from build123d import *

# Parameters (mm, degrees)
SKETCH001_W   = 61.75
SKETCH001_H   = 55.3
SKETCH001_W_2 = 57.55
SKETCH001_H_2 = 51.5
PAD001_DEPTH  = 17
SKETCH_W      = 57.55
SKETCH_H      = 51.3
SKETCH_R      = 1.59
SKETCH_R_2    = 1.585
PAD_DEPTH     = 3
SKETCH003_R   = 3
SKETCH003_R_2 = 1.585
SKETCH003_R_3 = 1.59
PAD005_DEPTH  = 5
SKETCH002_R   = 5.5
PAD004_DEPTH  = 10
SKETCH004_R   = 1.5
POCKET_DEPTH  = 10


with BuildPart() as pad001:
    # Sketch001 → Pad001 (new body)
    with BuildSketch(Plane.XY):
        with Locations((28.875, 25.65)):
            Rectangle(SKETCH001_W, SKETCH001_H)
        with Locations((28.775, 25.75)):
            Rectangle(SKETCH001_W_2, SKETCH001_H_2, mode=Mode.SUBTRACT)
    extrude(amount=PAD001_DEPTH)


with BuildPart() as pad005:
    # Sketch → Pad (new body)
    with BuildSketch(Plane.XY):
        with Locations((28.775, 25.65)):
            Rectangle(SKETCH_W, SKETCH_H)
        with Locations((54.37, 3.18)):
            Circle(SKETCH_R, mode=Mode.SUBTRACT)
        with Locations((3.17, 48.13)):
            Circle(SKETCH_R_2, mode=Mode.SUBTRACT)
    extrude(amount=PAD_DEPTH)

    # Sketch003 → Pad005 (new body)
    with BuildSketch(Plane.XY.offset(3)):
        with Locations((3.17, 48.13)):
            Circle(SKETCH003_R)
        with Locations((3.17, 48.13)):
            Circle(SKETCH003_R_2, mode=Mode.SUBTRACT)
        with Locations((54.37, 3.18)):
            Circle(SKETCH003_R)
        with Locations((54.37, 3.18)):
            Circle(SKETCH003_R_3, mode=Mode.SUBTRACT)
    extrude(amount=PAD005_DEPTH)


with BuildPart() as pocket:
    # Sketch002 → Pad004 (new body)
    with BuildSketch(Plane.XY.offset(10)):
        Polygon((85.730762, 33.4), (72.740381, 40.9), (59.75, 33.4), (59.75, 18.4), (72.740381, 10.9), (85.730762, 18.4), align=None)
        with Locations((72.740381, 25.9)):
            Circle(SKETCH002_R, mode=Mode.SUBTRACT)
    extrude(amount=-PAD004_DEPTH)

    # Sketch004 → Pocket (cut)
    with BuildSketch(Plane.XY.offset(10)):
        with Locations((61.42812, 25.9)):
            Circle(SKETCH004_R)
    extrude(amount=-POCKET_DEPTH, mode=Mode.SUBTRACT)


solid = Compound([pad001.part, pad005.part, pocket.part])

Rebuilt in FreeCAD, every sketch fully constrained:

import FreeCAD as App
import Part
import Sketcher
Q = App.Units.Quantity


def add_polygon(sketch, points):
    """Adds a closed chain of lines whose ends are joined by coincident constraints."""
    first, n = sketch.GeometryCount, len(points)
    for a, b in zip(points, points[1:] + points[:1]):
        sketch.addGeometry(Part.LineSegment(App.Vector(*a, 0), App.Vector(*b, 0)), False)
    for i in range(n):
        sketch.addConstraint(Sketcher.Constraint("Coincident", first + i, 2, first + (i + 1) % n, 1))

doc = App.newDocument("Part")
body = doc.addObject("PartDesign::Body", "Body")

# Sketch on XY plane
sketch1 = body.newObject("Sketcher::SketchObject", "Sketch")
sketch1.AttachmentSupport = (doc.getObject("XY_Plane"), [""])
sketch1.MapMode = "FlatFace"
add_polygon(sketch1, [(-2, 53), (-2, -2), (60, -2), (60, 53)])  # lines 0-3
add_polygon(sketch1, [(58, 0), (0, 0), (0, 52), (58, 52)])  # lines 4-7
sketch1.addConstraint(Sketcher.Constraint("Vertical", 0))
sketch1.addConstraint(Sketcher.Constraint("Horizontal", 1))
sketch1.addConstraint(Sketcher.Constraint("Vertical", 2))
sketch1.addConstraint(Sketcher.Constraint("Horizontal", 3))
sketch1.addConstraint(Sketcher.Constraint("Horizontal", 4))
sketch1.addConstraint(Sketcher.Constraint("Vertical", 5))
sketch1.addConstraint(Sketcher.Constraint("Horizontal", 6))
sketch1.addConstraint(Sketcher.Constraint("Vertical", 7))
sketch1.addConstraint(Sketcher.Constraint("Coincident", 4, 2, -1, 1))
sketch1.addConstraint(Sketcher.Constraint("DistanceY", 0, 2, 0, 1, 55.3))
sketch1.addConstraint(Sketcher.Constraint("DistanceY", 5, 1, 5, 2, 51.5))
sketch1.addConstraint(Sketcher.Constraint("DistanceX", 0, 2, -1, 1, 2.0))
sketch1.addConstraint(Sketcher.Constraint("DistanceY", 0, 2, -1, 1, 2.0))
sketch1.addConstraint(Sketcher.Constraint("DistanceX", 1, 1, 1, 2, 61.75))
sketch1.addConstraint(Sketcher.Constraint("DistanceX", 4, 2, 4, 1, 57.55))
pad1 = body.newObject("PartDesign::Pad", "Pad")
pad1.Profile = sketch1
pad1.Length = 17
body2 = doc.addObject("PartDesign::Body", "Body001")

# Sketch on XY plane
sketch2 = body2.newObject("Sketcher::SketchObject", "Sketch001")
sketch2.AttachmentSupport = (doc.getObject("XY_Plane001"), [""])
sketch2.MapMode = "FlatFace"
add_polygon(sketch2, [(0, 51.3), (0, 0), (57.5, 0), (57.5, 51.3)])  # lines 0-3
sketch2.addGeometry(Part.Circle(App.Vector(54.4, 3.2, 0), App.Vector(0, 0, 1), 1.6), False)  # 4
sketch2.addGeometry(Part.Circle(App.Vector(3.2, 48.1, 0), App.Vector(0, 0, 1), 1.6), False)  # 5
sketch2.addConstraint(Sketcher.Constraint("Vertical", 0))
sketch2.addConstraint(Sketcher.Constraint("Horizontal", 1))
sketch2.addConstraint(Sketcher.Constraint("Vertical", 2))
sketch2.addConstraint(Sketcher.Constraint("Horizontal", 3))
sketch2.addConstraint(Sketcher.Constraint("Coincident", 0, 2, -1, 1))
sketch2.addConstraint(Sketcher.Constraint("Diameter", 4, 3.18))
sketch2.addConstraint(Sketcher.Constraint("Diameter", 5, 3.17))
sketch2.addConstraint(Sketcher.Constraint("DistanceY", 0, 2, 0, 1, 51.3))
sketch2.addConstraint(Sketcher.Constraint("DistanceX", 1, 1, 1, 2, 57.55))
sketch2.addConstraint(Sketcher.Constraint("DistanceX", 5, 3, 4, 3, 51.2))
sketch2.addConstraint(Sketcher.Constraint("DistanceX", -1, 1, 4, 3, 54.37))
sketch2.addConstraint(Sketcher.Constraint("DistanceY", -1, 1, 4, 3, 3.18))
sketch2.addConstraint(Sketcher.Constraint("DistanceY", -1, 1, 5, 3, 48.13))
pad2 = body2.newObject("PartDesign::Pad", "Pad001")
pad2.Profile = sketch2
pad2.Length = 3

# Sketch on XY plane
sketch3 = body2.newObject("Sketcher::SketchObject", "Sketch002")
sketch3.AttachmentSupport = (doc.getObject("XY_Plane001"), [""])
sketch3.MapMode = "FlatFace"
sketch3.AttachmentOffset = App.Placement(App.Vector(0, 0, 3), App.Rotation())
sketch3.addGeometry(Part.Circle(App.Vector(3.2, 48.1, 0), App.Vector(0, 0, 1), 3), False)
sketch3.addGeometry(Part.Circle(App.Vector(3.2, 48.1, 0), App.Vector(0, 0, 1), 1.6), False)
sketch3.addGeometry(Part.Circle(App.Vector(54.4, 3.2, 0), App.Vector(0, 0, 1), 3), False)
sketch3.addGeometry(Part.Circle(App.Vector(54.4, 3.2, 0), App.Vector(0, 0, 1), 1.6), False)
sketch3.addConstraint(Sketcher.Constraint("Coincident", 1, 3, 0, 3))
sketch3.addConstraint(Sketcher.Constraint("Coincident", 3, 3, 2, 3))
sketch3.addConstraint(Sketcher.Constraint("Equal", 0, 2))
sketch3.addConstraint(Sketcher.Constraint("Diameter", 0, 6.0))
sketch3.addConstraint(Sketcher.Constraint("Diameter", 1, 3.17))
sketch3.addConstraint(Sketcher.Constraint("Diameter", 3, 3.18))
sketch3.addConstraint(Sketcher.Constraint("DistanceX", 0, 3, 2, 3, 51.2))
sketch3.addConstraint(Sketcher.Constraint("DistanceX", -1, 1, 0, 3, 3.17))
sketch3.addConstraint(Sketcher.Constraint("DistanceY", -1, 1, 0, 3, 48.13))
sketch3.addConstraint(Sketcher.Constraint("DistanceY", -1, 1, 2, 3, 3.18))
pad3 = body2.newObject("PartDesign::Pad", "Pad002")
pad3.Profile = sketch3
pad3.Length = 5
body3 = doc.addObject("PartDesign::Body", "Body002")

# Sketch on XY plane
sketch4 = body3.newObject("Sketcher::SketchObject", "Sketch003")
sketch4.AttachmentSupport = (doc.getObject("XY_Plane002"), [""])
sketch4.MapMode = "FlatFace"
sketch4.AttachmentOffset = App.Placement(App.Vector(0, 0, 10), App.Rotation())
add_polygon(sketch4, [(86, 33), (73, 41), (60, 33), (60, 18), (73, 11), (86, 18)])  # lines 0-5
sketch4.addGeometry(Part.Circle(App.Vector(73, 26, 0), App.Vector(0, 0, 1), 6), False)  # 6
sketch4.addConstraint(Sketcher.Constraint("Vertical", 2))
sketch4.addConstraint(Sketcher.Constraint("Vertical", 5))
sketch4.addConstraint(Sketcher.Constraint("Parallel", 0, 3))
sketch4.addConstraint(Sketcher.Constraint("Parallel", 1, 4))
sketch4.addConstraint(Sketcher.Constraint("Horizontal", 2, 2, 4, 2))
sketch4.addConstraint(Sketcher.Constraint("Horizontal", 1, 2, 5, 2))
sketch4.addConstraint(Sketcher.Constraint("Vertical", 6, 3, 0, 2))
sketch4.addConstraint(Sketcher.Constraint("Vertical", 0, 2, 3, 2))
sketch4.addConstraint(Sketcher.Constraint("Diameter", 6, 11.0))
sketch4.addConstraint(Sketcher.Constraint("DistanceY", 2, 2, 2, 1, 15.0))
sketch4.addConstraint(Sketcher.Constraint("Angle", 0, Q("150 deg")))
sketch4.addConstraint(Sketcher.Constraint("Distance", 0, 15.0))
sketch4.addConstraint(Sketcher.Constraint("DistanceY", 6, 3, 0, 2, 15.0))
sketch4.addConstraint(Sketcher.Constraint("DistanceY", -1, 1, 6, 3, 25.9))
sketch4.addConstraint(Sketcher.Constraint("DistanceX", -1, 1, 1, 2, 59.75))
pad4 = body3.newObject("PartDesign::Pad", "Pad003")
pad4.Profile = sketch4
pad4.Length = 10
pad4.Reversed = True

# Sketch on XY plane
sketch5 = body3.newObject("Sketcher::SketchObject", "Sketch004")
sketch5.AttachmentSupport = (doc.getObject("XY_Plane002"), [""])
sketch5.MapMode = "FlatFace"
sketch5.AttachmentOffset = App.Placement(App.Vector(0, 0, 10), App.Rotation())
sketch5.addGeometry(Part.Circle(App.Vector(61.4, 25.9, 0), App.Vector(0, 0, 1), 1.5), False)
sketch5.addConstraint(Sketcher.Constraint("Diameter", 0, 3.0))
sketch5.addConstraint(Sketcher.Constraint("DistanceY", -1, 1, 0, 3, 25.9))
sketch5.addConstraint(Sketcher.Constraint("DistanceX", -1, 1, 0, 3, 61.42812))
pocket1 = body3.newObject("PartDesign::Pocket", "Pocket")
pocket1.Profile = sketch5
pocket1.Length = 10

doc.recompute()
